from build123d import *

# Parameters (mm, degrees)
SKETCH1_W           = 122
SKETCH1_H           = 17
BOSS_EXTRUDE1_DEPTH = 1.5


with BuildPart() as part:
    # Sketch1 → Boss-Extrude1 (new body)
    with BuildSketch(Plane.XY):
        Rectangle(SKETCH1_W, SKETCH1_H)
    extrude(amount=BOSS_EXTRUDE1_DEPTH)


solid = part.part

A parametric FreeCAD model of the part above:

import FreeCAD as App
import Part
import Sketcher

V = App.Vector


def add_polygon(sketch, points):
    """Adds a closed chain of lines whose ends are joined by coincident constraints."""
    first, n = sketch.GeometryCount, len(points)
    for a, b in zip(points, points[1:] + points[:1]):
        sketch.addGeometry(Part.LineSegment(App.Vector(*a, 0), App.Vector(*b, 0)), False)
    for i in range(n):
        sketch.addConstraint(Sketcher.Constraint("Coincident", first + i, 2, first + (i + 1) % n, 1))

doc = App.newDocument("Part")
body = doc.addObject("PartDesign::Body", "Body")

sketch1 = body.newObject("Sketcher::SketchObject", "Sketch")
sketch1.AttachmentSupport = (doc.getObject("XY_Plane"), [""])
sketch1.MapMode = "FlatFace"
add_polygon(sketch1, [(-61, 8), (-61, -8), (61, -8), (61, 8)])
sketch1.addConstraint(Sketcher.Constraint("Vertical", 0))
sketch1.addConstraint(Sketcher.Constraint("Horizontal", 1))
sketch1.addConstraint(Sketcher.Constraint("Vertical", 2))
sketch1.addConstraint(Sketcher.Constraint("Horizontal", 3))
sketch1.addConstraint(Sketcher.Constraint("Symmetric", 0, 2, 2, 2, -1, 1))
sketch1.addConstraint(Sketcher.Constraint("DistanceX", 1, 1, 1, 2, 122.0))
sketch1.addConstraint(Sketcher.Constraint("DistanceY", 0, 2, 0, 1, 17.0))
pad1 = body.newObject("PartDesign::Pad", "Pad")
pad1.Profile = sketch1
pad1.Length = 1.5

doc.recompute()
